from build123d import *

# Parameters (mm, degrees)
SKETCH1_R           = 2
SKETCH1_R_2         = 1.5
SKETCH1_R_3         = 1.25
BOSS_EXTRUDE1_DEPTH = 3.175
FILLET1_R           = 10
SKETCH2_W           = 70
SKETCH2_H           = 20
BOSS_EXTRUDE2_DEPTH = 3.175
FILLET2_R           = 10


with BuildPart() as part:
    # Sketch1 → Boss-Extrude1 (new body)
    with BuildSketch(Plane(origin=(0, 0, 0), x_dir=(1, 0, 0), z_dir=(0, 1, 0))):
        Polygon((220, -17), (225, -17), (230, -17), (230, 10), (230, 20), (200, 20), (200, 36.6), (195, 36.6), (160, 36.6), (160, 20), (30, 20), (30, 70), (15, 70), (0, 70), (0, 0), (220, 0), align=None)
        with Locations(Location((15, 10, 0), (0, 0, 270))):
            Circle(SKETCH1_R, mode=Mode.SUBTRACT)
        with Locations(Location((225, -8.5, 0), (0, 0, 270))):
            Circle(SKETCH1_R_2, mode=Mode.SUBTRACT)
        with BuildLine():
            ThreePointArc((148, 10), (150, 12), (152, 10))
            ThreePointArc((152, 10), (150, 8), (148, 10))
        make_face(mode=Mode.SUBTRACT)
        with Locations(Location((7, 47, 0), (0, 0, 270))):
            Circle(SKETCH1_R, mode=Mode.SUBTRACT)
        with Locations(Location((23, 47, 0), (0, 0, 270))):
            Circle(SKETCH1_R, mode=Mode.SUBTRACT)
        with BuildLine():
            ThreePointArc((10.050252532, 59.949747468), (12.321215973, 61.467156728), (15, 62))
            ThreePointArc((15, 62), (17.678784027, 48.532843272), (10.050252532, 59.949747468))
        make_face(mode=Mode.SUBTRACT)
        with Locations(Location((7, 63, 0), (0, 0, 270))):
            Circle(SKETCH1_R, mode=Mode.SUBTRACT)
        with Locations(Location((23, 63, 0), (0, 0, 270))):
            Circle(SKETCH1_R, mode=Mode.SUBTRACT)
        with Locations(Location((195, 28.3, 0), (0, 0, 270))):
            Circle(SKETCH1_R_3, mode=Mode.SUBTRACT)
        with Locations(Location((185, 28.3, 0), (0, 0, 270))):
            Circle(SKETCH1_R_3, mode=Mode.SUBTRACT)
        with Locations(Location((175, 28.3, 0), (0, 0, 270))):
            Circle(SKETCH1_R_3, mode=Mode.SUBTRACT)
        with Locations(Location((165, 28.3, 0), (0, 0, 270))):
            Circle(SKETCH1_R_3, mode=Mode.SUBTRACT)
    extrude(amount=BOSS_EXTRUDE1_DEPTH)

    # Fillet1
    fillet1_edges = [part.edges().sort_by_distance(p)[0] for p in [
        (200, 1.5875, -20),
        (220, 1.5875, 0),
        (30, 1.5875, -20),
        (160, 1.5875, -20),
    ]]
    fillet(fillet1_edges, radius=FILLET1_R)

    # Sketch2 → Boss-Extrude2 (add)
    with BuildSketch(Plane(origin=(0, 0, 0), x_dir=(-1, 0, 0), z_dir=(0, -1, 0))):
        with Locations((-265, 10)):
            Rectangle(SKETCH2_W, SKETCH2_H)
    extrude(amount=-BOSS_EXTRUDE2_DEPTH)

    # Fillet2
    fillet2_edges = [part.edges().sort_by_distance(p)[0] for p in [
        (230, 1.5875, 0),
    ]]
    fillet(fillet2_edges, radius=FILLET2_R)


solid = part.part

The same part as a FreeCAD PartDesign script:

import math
import FreeCAD as App
import Part
import Sketcher

V = App.Vector
Q = App.Units.Quantity


def edges_at(feature, points):
    """Names of the edges that pass closest to the given points."""
    edges = feature.Shape.Edges
    near = lambda p: min(range(len(edges)), key=lambda i: edges[i].distToShape(Part.Vertex(*p))[0])
    return sorted({f"Edge{near(p) + 1}" for p in points})

doc = App.newDocument("Part")
body = doc.addObject("PartDesign::Body", "Body")

sketch1 = doc.addObject("Sketcher::SketchObject", "Sketch")
body.addObject(sketch1)
sketch1.AttachmentSupport = (doc.XZ_Plane, [""])
sketch1.MapMode = "FlatFace"
sketch1.addGeometry([
    Part.LineSegment(V(220, 17, 0), V(230, 17, 0)),
    Part.LineSegment(V(230, 17, 0), V(230, -20, 0)),
    Part.LineSegment(V(230, -20, 0), V(200, -20, 0)),
    Part.LineSegment(V(200, -20, 0), V(200, -36.6, 0)),
    Part.LineSegment(V(200, -36.6, 0), V(160, -36.6, 0)),
    Part.LineSegment(V(160, -36.6, 0), V(160, -20, 0)),
    Part.LineSegment(V(160, -20, 0), V(30, -20, 0)),
    Part.LineSegment(V(30, -20, 0), V(30, -70, 0)),
    Part.LineSegment(V(30, -70, 0), V(0, -70, 0)),
    Part.LineSegment(V(0, -70, 0), V(0, 0, 0)),
    Part.LineSegment(V(0, 0, 0), V(220, 0, 0)),
    Part.LineSegment(V(220, 0, 0), V(220, 17, 0)),
    Part.Circle(V(15, -10, 0), V(0, 0, 1), 2),
    Part.Circle(V(225, 8.5, 0), V(0, 0, 1), 1.5),
    Part.Circle(V(150, -10, 0), V(0, 0, 1), 2),
    Part.Circle(V(7, -47, 0), V(0, 0, 1), 2),
    Part.Circle(V(23, -47, 0), V(0, 0, 1), 2),
    Part.ArcOfCircle(Part.Circle(V(15, -55, 0), V(0, 0, 1), 7), math.radians(-90), math.radians(225)),
    Part.ArcOfCircle(Part.Circle(V(15, -55, 0), V(0, 0, 1), 7), math.radians(-135), math.radians(-90)),
    Part.Circle(V(7, -63, 0), V(0, 0, 1), 2),
    Part.Circle(V(23, -63, 0), V(0, 0, 1), 2),
    Part.Circle(V(165, -28.3, 0), V(0, 0, 1), 1.2),
    Part.Circle(V(175, -28.3, 0), V(0, 0, 1), 1.2),
    Part.Circle(V(185, -28.3, 0), V(0, 0, 1), 1.2),
    Part.Circle(V(195, -28.3, 0), V(0, 0, 1), 1.2),
], False)
sketch1.addConstraint([
    Sketcher.Constraint("Coincident", 0, 2, 1, 1),
    Sketcher.Constraint("Coincident", 1, 2, 2, 1),
    Sketcher.Constraint("Coincident", 2, 2, 3, 1),
    Sketcher.Constraint("Coincident", 3, 2, 4, 1),
    Sketcher.Constraint("Coincident", 4, 2, 5, 1),
    Sketcher.Constraint("Coincident", 5, 2, 6, 1),
    Sketcher.Constraint("Coincident", 6, 2, 7, 1),
    Sketcher.Constraint("Coincident", 7, 2, 8, 1),
    Sketcher.Constraint("Coincident", 8, 2, 9, 1),
    Sketcher.Constraint("Coincident", 9, 2, 10, 1),
    Sketcher.Constraint("Coincident", 10, 2, 11, 1),
    Sketcher.Constraint("Coincident", 11, 2, 0, 1),
    Sketcher.Constraint("Tangent", 17, 1, 18, 2),
    Sketcher.Constraint("Coincident", 18, 1, 17, 2),
    Sketcher.Constraint("Horizontal", 0),
    Sketcher.Constraint("Vertical", 1),
    Sketcher.Constraint("Horizontal", 2),
    Sketcher.Constraint("Vertical", 3),
    Sketcher.Constraint("Horizontal", 4),
    Sketcher.Constraint("Vertical", 5),
    Sketcher.Constraint("Horizontal", 6),
    Sketcher.Constraint("Vertical", 7),
    Sketcher.Constraint("Horizontal", 8),
    Sketcher.Constraint("Vertical", 9),
    Sketcher.Constraint("Horizontal", 10),
    Sketcher.Constraint("Vertical", 11),
    Sketcher.Constraint("Coincident", 9, 2, -1, 1),
    Sketcher.Constraint("Equal", 12, 14),
    Sketcher.Constraint("Equal", 14, 15),
    Sketcher.Constraint("Equal", 15, 16),
    Sketcher.Constraint("Equal", 16, 19),
    Sketcher.Constraint("Equal", 19, 20),
    Sketcher.Constraint("Equal", 21, 22),
    Sketcher.Constraint("Equal", 22, 23),
    Sketcher.Constraint("Equal", 23, 24),
    Sketcher.Constraint("Horizontal", 12, 3, 14, 3),
    Sketcher.Constraint("Horizontal", 15, 3, 16, 3),
    Sketcher.Constraint("Horizontal", 19, 3, 20, 3),
    Sketcher.Constraint("Horizontal", 21, 3, 22, 3),
    Sketcher.Constraint("Horizontal", 22, 3, 23, 3),
    Sketcher.Constraint("Horizontal", 23, 3, 24, 3),
    Sketcher.Constraint("Horizontal", 2, 2, 5, 2),
    Sketcher.Constraint("Vertical", 12, 3, 17, 3),
    Sketcher.Constraint("Vertical", 15, 3, 19, 3),
    Sketcher.Constraint("Vertical", 16, 3, 20, 3),
    Sketcher.Constraint("Vertical", 18, 3, 17, 1),
    Sketcher.Constraint("Equal", 2, 8),
    Sketcher.Constraint("Diameter", 12, Q("4 mm")),
    Sketcher.Constraint("Diameter", 13, Q("3 mm")),
    Sketcher.Constraint("Radius", 17, Q("7 mm")),
    Sketcher.Constraint("Diameter", 21, Q("2.5 mm")),
    Sketcher.Constraint("DistanceX", 0, 1, 0, 2, Q("10 mm")),
    Sketcher.Constraint("DistanceX", 2, 2, 2, 1, Q("30 mm")),
    Sketcher.Constraint("DistanceX", 4, 2, 4, 1, Q("40 mm")),
    Sketcher.Constraint("DistanceX", 6, 2, 6, 1, Q("130 mm")),
    Sketcher.Constraint("DistanceY", 1, 2, 1, 1, Q("37 mm")),
    Sketcher.Constraint("DistanceY", 7, 2, 7, 1, Q("50 mm")),
    Sketcher.Constraint("DistanceY", 9, 1, 9, 2, Q("70 mm")),
    Sketcher.Constraint("DistanceY", 3, 2, 3, 1, Q("16.6 mm")),
    Sketcher.Constraint("DistanceX", -1, 1, 12, 3, Q("15 mm")),
    Sketcher.Constraint("DistanceY", 12, 3, -1, 1, Q("10 mm")),
    Sketcher.Constraint("DistanceX", -1, 1, 13, 3, Q("225 mm")),
    Sketcher.Constraint("DistanceX", -1, 1, 14, 3, Q("150 mm")),
    Sketcher.Constraint("DistanceX", -1, 1, 15, 3, Q("7 mm")),
    Sketcher.Constraint("DistanceY", 15, 3, -1, 1, Q("47 mm")),
    Sketcher.Constraint("DistanceX", -1, 1, 16, 3, Q("23 mm")),
    Sketcher.Constraint("DistanceY", 17, 3, -1, 1, Q("55 mm")),
    Sketcher.Constraint("DistanceY", 19, 3, -1, 1, Q("63 mm")),
    Sketcher.Constraint("DistanceX", -1, 1, 21, 3, Q("165 mm")),
    Sketcher.Constraint("DistanceX", -1, 1, 22, 3, Q("175 mm")),
    Sketcher.Constraint("DistanceX", -1, 1, 23, 3, Q("185 mm")),
    Sketcher.Constraint("DistanceX", -1, 1, 24, 3, Q("195 mm")),
    Sketcher.Constraint("DistanceY", -1, 1, 13, 3, Q("8.5 mm")),
    Sketcher.Constraint("DistanceY", 21, 3, -1, 1, Q("28.3 mm")),
    Sketcher.Constraint("DistanceX", -1, 1, 18, 1, Q("10.050253 mm")),
])
pad1 = doc.addObject("PartDesign::Pad", "Pad")
body.addObject(pad1)
pad1.Profile = sketch1
pad1.Length = 3.175
pad1.Reversed = True
doc.recompute()

fillet = doc.addObject("PartDesign::Fillet", "Fillet")
body.addObject(fillet)
fillet.Base = (pad1, edges_at(pad1, [
    (200, 1.587, -20),
    (220, 1.587, 0),
    (30, 1.587, -20),
    (160, 1.587, -20),
]))
fillet.Radius = 10

sketch2 = doc.addObject("Sketcher::SketchObject", "Sketch001")
body.addObject(sketch2)
sketch2.AttachmentSupport = (doc.XZ_Plane, [""])
sketch2.MapMode = "FlatFace"
sketch2.addGeometry([
    Part.LineSegment(V(300, -20, 0), V(300, 0, 0)),
    Part.LineSegment(V(300, 0, 0), V(230, 0, 0)),
    Part.LineSegment(V(230, 0, 0), V(230, -20, 0)),
    Part.LineSegment(V(230, -20, 0), V(300, -20, 0)),
], False)
sketch2.addConstraint([
    Sketcher.Constraint("Coincident", 0, 2, 1, 1),
    Sketcher.Constraint("Coincident", 1, 2, 2, 1),
    Sketcher.Constraint("Coincident", 2, 2, 3, 1),
    Sketcher.Constraint("Coincident", 3, 2, 0, 1),
    Sketcher.Constraint("Vertical", 0),
    Sketcher.Constraint("Horizontal", 1),
    Sketcher.Constraint("Vertical", 2),
    Sketcher.Constraint("Horizontal", 3),
    Sketcher.Constraint("PointOnObject", 0, 2, -1),
    Sketcher.Constraint("DistanceX", 1, 2, 1, 1, Q("70 mm")),
    Sketcher.Constraint("DistanceY", 0, 1, 0, 2, Q("20 mm")),
    Sketcher.Constraint("DistanceX", -1, 1, 0, 2, Q("300 mm")),
])
pad2 = doc.addObject("PartDesign::Pad", "Pad001")
body.addObject(pad2)
pad2.Profile = sketch2
pad2.Length = 3.175
pad2.Reversed = True
doc.recompute()

fillet2 = doc.addObject("PartDesign::Fillet", "Fillet001")
body.addObject(fillet2)
fillet2.Base = (pad2, edges_at(pad2, [(230, 1.587, 0)]))
fillet2.Radius = 10

doc.recompute()
